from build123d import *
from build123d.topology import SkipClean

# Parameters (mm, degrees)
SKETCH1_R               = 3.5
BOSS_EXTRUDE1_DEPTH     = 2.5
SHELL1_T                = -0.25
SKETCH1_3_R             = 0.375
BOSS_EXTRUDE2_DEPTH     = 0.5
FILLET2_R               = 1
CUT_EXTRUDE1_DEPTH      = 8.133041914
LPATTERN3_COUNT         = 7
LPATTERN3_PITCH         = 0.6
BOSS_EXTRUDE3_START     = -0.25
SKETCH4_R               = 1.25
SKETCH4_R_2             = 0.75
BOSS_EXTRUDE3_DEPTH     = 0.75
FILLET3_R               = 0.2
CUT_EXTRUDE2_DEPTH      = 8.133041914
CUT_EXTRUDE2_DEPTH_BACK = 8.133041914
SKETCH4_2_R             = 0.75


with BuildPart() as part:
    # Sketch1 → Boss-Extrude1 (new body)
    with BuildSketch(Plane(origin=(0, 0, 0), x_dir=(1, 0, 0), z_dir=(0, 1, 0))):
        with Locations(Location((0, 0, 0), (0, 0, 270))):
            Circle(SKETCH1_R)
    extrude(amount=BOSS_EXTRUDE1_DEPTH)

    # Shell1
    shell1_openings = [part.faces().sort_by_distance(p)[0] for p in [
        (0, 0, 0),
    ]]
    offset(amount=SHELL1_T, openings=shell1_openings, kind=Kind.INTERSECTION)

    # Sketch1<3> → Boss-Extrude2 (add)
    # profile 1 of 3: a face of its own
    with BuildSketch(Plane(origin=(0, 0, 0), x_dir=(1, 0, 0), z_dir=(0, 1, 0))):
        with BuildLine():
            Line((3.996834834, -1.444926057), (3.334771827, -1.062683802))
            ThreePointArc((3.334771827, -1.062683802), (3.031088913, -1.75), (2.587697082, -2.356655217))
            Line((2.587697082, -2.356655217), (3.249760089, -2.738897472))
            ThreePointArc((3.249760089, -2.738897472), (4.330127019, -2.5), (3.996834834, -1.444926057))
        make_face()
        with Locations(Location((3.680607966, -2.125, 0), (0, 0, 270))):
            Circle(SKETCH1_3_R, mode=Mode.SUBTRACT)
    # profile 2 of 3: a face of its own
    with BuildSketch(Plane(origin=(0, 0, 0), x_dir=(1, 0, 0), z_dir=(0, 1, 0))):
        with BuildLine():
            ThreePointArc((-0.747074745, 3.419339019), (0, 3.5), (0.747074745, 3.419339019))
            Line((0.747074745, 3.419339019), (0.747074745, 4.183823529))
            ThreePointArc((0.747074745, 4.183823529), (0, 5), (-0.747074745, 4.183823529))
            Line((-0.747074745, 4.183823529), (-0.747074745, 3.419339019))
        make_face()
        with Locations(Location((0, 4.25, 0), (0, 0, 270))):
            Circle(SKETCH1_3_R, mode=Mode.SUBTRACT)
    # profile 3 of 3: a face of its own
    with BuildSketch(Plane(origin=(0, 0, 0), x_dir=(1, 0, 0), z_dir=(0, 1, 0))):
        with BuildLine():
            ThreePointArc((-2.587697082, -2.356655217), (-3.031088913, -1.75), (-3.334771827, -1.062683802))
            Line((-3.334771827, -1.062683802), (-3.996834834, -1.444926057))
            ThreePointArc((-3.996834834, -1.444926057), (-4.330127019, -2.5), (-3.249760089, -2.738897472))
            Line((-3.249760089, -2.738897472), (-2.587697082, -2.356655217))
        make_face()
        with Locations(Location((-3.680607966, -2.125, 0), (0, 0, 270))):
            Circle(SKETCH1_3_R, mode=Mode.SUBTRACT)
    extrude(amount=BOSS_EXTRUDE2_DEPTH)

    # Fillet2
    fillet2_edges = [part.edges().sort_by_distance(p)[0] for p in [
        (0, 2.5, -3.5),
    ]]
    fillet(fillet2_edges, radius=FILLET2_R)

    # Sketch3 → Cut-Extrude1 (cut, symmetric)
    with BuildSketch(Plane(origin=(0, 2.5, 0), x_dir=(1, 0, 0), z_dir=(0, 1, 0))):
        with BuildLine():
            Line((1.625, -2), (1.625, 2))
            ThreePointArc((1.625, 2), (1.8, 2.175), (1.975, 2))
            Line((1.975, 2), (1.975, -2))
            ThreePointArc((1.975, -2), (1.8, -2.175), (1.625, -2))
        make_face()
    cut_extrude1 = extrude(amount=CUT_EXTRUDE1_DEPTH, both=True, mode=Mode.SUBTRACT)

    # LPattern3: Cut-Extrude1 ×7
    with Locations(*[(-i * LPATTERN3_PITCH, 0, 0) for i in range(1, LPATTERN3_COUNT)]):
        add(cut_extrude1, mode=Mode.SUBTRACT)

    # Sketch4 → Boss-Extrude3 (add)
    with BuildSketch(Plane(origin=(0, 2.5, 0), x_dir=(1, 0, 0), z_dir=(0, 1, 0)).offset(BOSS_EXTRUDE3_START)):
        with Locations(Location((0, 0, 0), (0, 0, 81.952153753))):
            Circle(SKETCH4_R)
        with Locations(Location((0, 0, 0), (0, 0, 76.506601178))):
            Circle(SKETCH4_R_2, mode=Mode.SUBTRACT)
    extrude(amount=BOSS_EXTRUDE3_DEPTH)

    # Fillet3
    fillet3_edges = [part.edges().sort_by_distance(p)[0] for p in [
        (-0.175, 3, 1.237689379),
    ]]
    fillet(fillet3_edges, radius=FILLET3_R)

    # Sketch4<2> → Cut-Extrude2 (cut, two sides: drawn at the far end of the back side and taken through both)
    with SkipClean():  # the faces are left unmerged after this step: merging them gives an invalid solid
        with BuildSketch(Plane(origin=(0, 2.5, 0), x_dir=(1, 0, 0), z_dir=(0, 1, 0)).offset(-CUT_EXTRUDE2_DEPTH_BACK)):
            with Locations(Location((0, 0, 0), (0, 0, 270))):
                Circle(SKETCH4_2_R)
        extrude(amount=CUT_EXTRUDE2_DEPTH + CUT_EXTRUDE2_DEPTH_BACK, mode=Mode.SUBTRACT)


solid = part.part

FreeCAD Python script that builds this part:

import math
import FreeCAD as App
import Part
import Sketcher
from FreeCAD import Vector
Q = App.Units.Quantity


def edges_at(feature, points):
    """Names of the edges that pass closest to the given points."""
    edges = feature.Shape.Edges
    near = lambda p: min(range(len(edges)), key=lambda i: edges[i].distToShape(Part.Vertex(*p))[0])
    return sorted({f"Edge{near(p) + 1}" for p in points})


def faces_at(feature, points):
    """Names of the faces that lie closest to the given points."""
    faces = feature.Shape.Faces
    near = lambda p: min(range(len(faces)), key=lambda i: faces[i].distToShape(Part.Vertex(*p))[0])
    return sorted({f"Face{near(p) + 1}" for p in points})

doc = App.newDocument("Part")
body = doc.addObject("PartDesign::Body", "Body")

sketch1 = body.newObject("Sketcher::SketchObject", "Sketch")
sketch1.AttachmentSupport = (doc.getObject("XZ_Plane"), [""])
sketch1.MapMode = "FlatFace"
sketch1.addGeometry(Part.Circle(Vector(0, 0, 0), Vector(0, 0, 1), 3.5), False)
sketch1.addConstraint(Sketcher.Constraint("Coincident", 0, 3, -1, 1))
sketch1.addConstraint(Sketcher.Constraint("Diameter", 0, Q("7 mm")))
pad1 = body.newObject("PartDesign::Pad", "Pad")
pad1.Profile = sketch1
pad1.Length = 2.5
pad1.Reversed = True
doc.recompute()

thickness = body.newObject("PartDesign::Thickness", "Thickness")
thickness.Base = (pad1, faces_at(pad1, [(0, 0, 0)]))
thickness.Value = 0.25
thickness.Reversed = True
thickness.Join = "Intersection"

sketch2 = body.newObject("Sketcher::SketchObject", "Sketch001")
sketch2.AttachmentSupport = (doc.getObject("XZ_Plane"), [""])
sketch2.MapMode = "FlatFace"
sketch2.addGeometry(Part.LineSegment(Vector(4, 1.44, 0), Vector(3.33, 1.06, 0)), False)
sketch2.addGeometry(Part.ArcOfCircle(Part.Circle(Vector(0, 0, 0), Vector(0, 0, 1), 3.5), math.radians(18), math.radians(42)), False)
sketch2.addGeometry(Part.LineSegment(Vector(2.59, 2.36, 0), Vector(3.25, 2.74, 0)), False)
sketch2.addGeometry(Part.ArcOfCircle(Part.Circle(Vector(3.68, 2.12, 0), Vector(0, 0, 1), 0.75), math.radians(-65), math.radians(125)), False)
sketch2.addGeometry(Part.Circle(Vector(3.68, 2.12, 0), Vector(0, 0, 1), 0.38), False)
sketch2.addGeometry(Part.ArcOfCircle(Part.Circle(Vector(0, 0, 0), Vector(0, 0, 1), 3.5), math.radians(-102), math.radians(-78)), False)
sketch2.addGeometry(Part.LineSegment(Vector(0.75, -3.42, 0), Vector(0.75, -4.18, 0)), False)
sketch2.addGeometry(Part.ArcOfCircle(Part.Circle(Vector(0, -4.25, 0), Vector(0, 0, 1), 0.75), math.radians(175), math.radians(365)), False)
sketch2.addGeometry(Part.LineSegment(Vector(-0.75, -4.18, 0), Vector(-0.75, -3.42, 0)), False)
sketch2.addGeometry(Part.Circle(Vector(0, -4.25, 0), Vector(0, 0, 1), 0.38), False)
sketch2.addGeometry(Part.ArcOfCircle(Part.Circle(Vector(0, 0, 0), Vector(0, 0, 1), 3.5), math.radians(138), math.radians(162)), False)
sketch2.addGeometry(Part.LineSegment(Vector(-3.33, 1.06, 0), Vector(-4, 1.44, 0)), False)
sketch2.addGeometry(Part.ArcOfCircle(Part.Circle(Vector(-3.68, 2.12, 0), Vector(0, 0, 1), 0.75), math.radians(55), math.radians(245)), False)
sketch2.addGeometry(Part.LineSegment(Vector(-3.25, 2.74, 0), Vector(-2.59, 2.36, 0)), False)
sketch2.addGeometry(Part.Circle(Vector(-3.68, 2.12, 0), Vector(0, 0, 1), 0.38), False)
sketch2.addConstraint(Sketcher.Constraint("Coincident", 0, 2, 1, 1))
sketch2.addConstraint(Sketcher.Constraint("Coincident", 1, 2, 2, 1))
sketch2.addConstraint(Sketcher.Constraint("Coincident", 2, 2, 3, 2))
sketch2.addConstraint(Sketcher.Constraint("Coincident", 3, 1, 0, 1))
sketch2.addConstraint(Sketcher.Constraint("Coincident", 5, 2, 6, 1))
sketch2.addConstraint(Sketcher.Constraint("Coincident", 6, 2, 7, 2))
sketch2.addConstraint(Sketcher.Constraint("Coincident", 7, 1, 8, 1))
sketch2.addConstraint(Sketcher.Constraint("Coincident", 8, 2, 5, 1))
sketch2.addConstraint(Sketcher.Constraint("Coincident", 10, 2, 11, 1))
sketch2.addConstraint(Sketcher.Constraint("Coincident", 11, 2, 12, 2))
sketch2.addConstraint(Sketcher.Constraint("Coincident", 12, 1, 13, 1))
sketch2.addConstraint(Sketcher.Constraint("Coincident", 13, 2, 10, 1))
sketch2.addConstraint(Sketcher.Constraint("Vertical", 6))
sketch2.addConstraint(Sketcher.Constraint("Vertical", 8))
sketch2.addConstraint(Sketcher.Constraint("Coincident", 1, 3, -1, 1))
sketch2.addConstraint(Sketcher.Constraint("Coincident", 5, 3, -1, 1))
sketch2.addConstraint(Sketcher.Constraint("Coincident", 10, 3, -1, 1))
sketch2.addConstraint(Sketcher.Constraint("Coincident", 4, 3, 3, 3))
sketch2.addConstraint(Sketcher.Constraint("Coincident", 9, 3, 7, 3))
sketch2.addConstraint(Sketcher.Constraint("Coincident", 14, 3, 12, 3))
sketch2.addConstraint(Sketcher.Constraint("Equal", 1, 5))
sketch2.addConstraint(Sketcher.Constraint("Equal", 3, 7))
sketch2.addConstraint(Sketcher.Constraint("Equal", 4, 9))
sketch2.addConstraint(Sketcher.Constraint("Equal", 5, 10))
sketch2.addConstraint(Sketcher.Constraint("Equal", 7, 12))
sketch2.addConstraint(Sketcher.Constraint("Equal", 9, 14))
sketch2.addConstraint(Sketcher.Constraint("Symmetric", 3, 3, 12, 3, -2))
sketch2.addConstraint(Sketcher.Constraint("Symmetric", 6, 2, 7, 1, -2))
sketch2.addConstraint(Sketcher.Constraint("Parallel", 0, 2))
sketch2.addConstraint(Sketcher.Constraint("Parallel", 11, 13))
sketch2.addConstraint(Sketcher.Constraint("Horizontal", 0, 2, 10, 2))
sketch2.addConstraint(Sketcher.Constraint("Horizontal", 3, 1, 11, 2))
sketch2.addConstraint(Sketcher.Constraint("Horizontal", 2, 2, 12, 1))
sketch2.addConstraint(Sketcher.Constraint("Equal", 0, 2))
sketch2.addConstraint(Sketcher.Constraint("Radius", 1, Q("3.5 mm")))
sketch2.addConstraint(Sketcher.Constraint("Diameter", 4, Q("0.75 mm")))
sketch2.addConstraint(Sketcher.Constraint("Angle", 0, Q("-150 deg")))
sketch2.addConstraint(Sketcher.Constraint("Radius", 3, Q("0.75 mm")))
sketch2.addConstraint(Sketcher.Constraint("DistanceY", 7, 3, -1, 1, Q("4.25 mm")))
sketch2.addConstraint(Sketcher.Constraint("DistanceY", -1, 1, 3, 3, Q("2.125 mm")))
sketch2.addConstraint(Sketcher.Constraint("DistanceY", 6, 2, 6, 1, Q("0.764485 mm")))
sketch2.addConstraint(Sketcher.Constraint("DistanceX", -1, 1, 0, 2, Q("3.334772 mm")))
sketch2.addConstraint(Sketcher.Constraint("DistanceX", -1, 1, 2, 2, Q("3.24976 mm")))
pad2 = body.newObject("PartDesign::Pad", "Pad001")
pad2.Profile = sketch2
pad2.Length = 0.5
pad2.Reversed = True
doc.recompute()

fillet = body.newObject("PartDesign::Fillet", "Fillet")
fillet.Base = (pad2, edges_at(pad2, [(0, 2.5, -3.5)]))
fillet.Radius = 1

sketch3 = body.newObject("Sketcher::SketchObject", "Sketch002")
sketch3.AttachmentSupport = (doc.getObject("XZ_Plane"), [""])
sketch3.MapMode = "FlatFace"
sketch3.AttachmentOffset = App.Placement(Vector(0, 0, -2.5), App.Rotation())
sketch3.addGeometry(Part.LineSegment(Vector(1.62, -2, 0), Vector(1.62, 2, 0)), False)
sketch3.addGeometry(Part.ArcOfCircle(Part.Circle(Vector(1.8, 2, 0), Vector(0, 0, 1), 0.17), math.radians(0), math.radians(180)), False)
sketch3.addGeometry(Part.LineSegment(Vector(1.98, 2, 0), Vector(1.98, -2, 0)), False)
sketch3.addGeometry(Part.ArcOfCircle(Part.Circle(Vector(1.8, -2, 0), Vector(0, 0, 1), 0.17), math.radians(180), math.radians(360)), False)
sketch3.addConstraint(Sketcher.Constraint("Tangent", 0, 2, 1, 2))
sketch3.addConstraint(Sketcher.Constraint("Tangent", 1, 1, 2, 1))
sketch3.addConstraint(Sketcher.Constraint("Tangent", 2, 2, 3, 2))
sketch3.addConstraint(Sketcher.Constraint("Tangent", 3, 1, 0, 1))
sketch3.addConstraint(Sketcher.Constraint("Vertical", 0))
sketch3.addConstraint(Sketcher.Constraint("Vertical", 2))
sketch3.addConstraint(Sketcher.Constraint("DistanceY", 0, 1, 0, 2, Q("4 mm")))
sketch3.addConstraint(Sketcher.Constraint("DistanceY", -1, 1, 1, 3, Q("2 mm")))
sketch3.addConstraint(Sketcher.Constraint("Radius", 1, Q("0.175 mm")))
sketch3.addConstraint(Sketcher.Constraint("DistanceX", -1, 1, 1, 3, Q("1.8 mm")))
pocket1 = body.newObject("PartDesign::Pocket", "Pocket")
pocket1.Profile = sketch3
pocket1.Length = 16.266084
pocket1.Midplane = True
doc.recompute()

linearpattern = body.newObject("PartDesign::LinearPattern", "LinearPattern")
linearpattern.Originals = [pocket1]
linearpattern.Direction = (doc.getObject("X_Axis"), [""])
linearpattern.Mode = "offset"
linearpattern.Offset = 0.6
linearpattern.Occurrences = 7
linearpattern.Reversed = True
body.Tip = linearpattern

sketch4 = body.newObject("Sketcher::SketchObject", "Sketch003")
sketch4.AttachmentSupport = (doc.getObject("XZ_Plane"), [""])
sketch4.MapMode = "FlatFace"
sketch4.AttachmentOffset = App.Placement(Vector(0, 0, -2.25), App.Rotation())
sketch4.addGeometry(Part.Circle(Vector(0, 0, 0), Vector(0, 0, 1), 1.2), False)
sketch4.addGeometry(Part.Circle(Vector(0, 0, 0), Vector(0, 0, 1), 0.8), False)
sketch4.addConstraint(Sketcher.Constraint("Coincident", 0, 3, -1, 1))
sketch4.addConstraint(Sketcher.Constraint("Coincident", 1, 3, -1, 1))
sketch4.addConstraint(Sketcher.Constraint("Diameter", 0, Q("2.5 mm")))
sketch4.addConstraint(Sketcher.Constraint("Diameter", 1, Q("1.5 mm")))
pad3 = body.newObject("PartDesign::Pad", "Pad002")
pad3.Profile = sketch4
pad3.Length = 0.75
pad3.Reversed = True
doc.recompute()

fillet2 = body.newObject("PartDesign::Fillet", "Fillet001")
fillet2.Base = (pad3, edges_at(pad3, [(-0.175, 3, 1.238)]))
fillet2.Radius = 0.2

sketch5 = body.newObject("Sketcher::SketchObject", "Sketch004")
sketch5.AttachmentSupport = (doc.getObject("XZ_Plane"), [""])
sketch5.MapMode = "FlatFace"
sketch5.AttachmentOffset = App.Placement(Vector(0, 0, -2.5), App.Rotation())
sketch5.addGeometry(Part.Circle(Vector(0, 0, 0), Vector(0, 0, 1), 0.8), False)
sketch5.addConstraint(Sketcher.Constraint("Coincident", 0, 3, -1, 1))
sketch5.addConstraint(Sketcher.Constraint("Diameter", 0, Q("1.5 mm")))
pocket2 = body.newObject("PartDesign::Pocket", "Pocket001")
pocket2.Profile = sketch5
pocket2.Type = "ThroughAll"
pocket2.Midplane = True

doc.recompute()
